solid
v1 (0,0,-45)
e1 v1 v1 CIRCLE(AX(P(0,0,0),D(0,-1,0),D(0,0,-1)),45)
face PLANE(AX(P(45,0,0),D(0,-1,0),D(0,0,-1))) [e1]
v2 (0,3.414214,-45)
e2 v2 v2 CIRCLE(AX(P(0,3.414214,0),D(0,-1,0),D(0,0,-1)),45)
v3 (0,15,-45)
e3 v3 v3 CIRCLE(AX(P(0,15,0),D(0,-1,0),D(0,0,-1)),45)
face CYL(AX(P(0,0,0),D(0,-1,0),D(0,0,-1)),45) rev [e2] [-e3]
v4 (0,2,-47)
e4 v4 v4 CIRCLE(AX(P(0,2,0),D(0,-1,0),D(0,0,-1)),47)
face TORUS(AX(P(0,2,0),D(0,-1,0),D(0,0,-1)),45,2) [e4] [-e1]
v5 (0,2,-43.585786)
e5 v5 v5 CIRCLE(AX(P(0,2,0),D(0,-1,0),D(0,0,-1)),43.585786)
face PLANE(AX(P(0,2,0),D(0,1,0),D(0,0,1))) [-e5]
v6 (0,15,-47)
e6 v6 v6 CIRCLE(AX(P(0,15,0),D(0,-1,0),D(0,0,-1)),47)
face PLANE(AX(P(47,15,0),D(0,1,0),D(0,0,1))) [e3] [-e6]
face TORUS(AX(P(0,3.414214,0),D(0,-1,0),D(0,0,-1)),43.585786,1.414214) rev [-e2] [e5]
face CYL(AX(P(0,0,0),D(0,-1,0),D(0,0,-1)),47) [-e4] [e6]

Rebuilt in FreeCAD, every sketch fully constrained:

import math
import FreeCAD as App
import Part
import Sketcher

V = App.Vector
Q = App.Units.Quantity

doc = App.newDocument("Part")
body = doc.addObject("PartDesign::Body", "Body")

# Sketch on XY plane
sketch1 = body.newObject("Sketcher::SketchObject", "Sketch")
sketch1.AttachmentSupport = (doc.getObject("XY_Plane"), [""])
sketch1.MapMode = "FlatFace"
sketch1.addGeometry([
    Part.LineSegment(V(0, 0, 0), V(45, 0, 0)),  # 0
    Part.ArcOfCircle(Part.Circle(V(45, 2, 0), V(0, 0, 1), 2), math.radians(-90), math.radians(0)),  # 1
    Part.LineSegment(V(47, 2, 0), V(47, 15, 0)),  # 2
    Part.LineSegment(V(47, 15, 0), V(45, 15, 0)),  # 3
    Part.LineSegment(V(45, 15, 0), V(45, 3.4, 0)),  # 4
    Part.ArcOfCircle(Part.Circle(V(43.6, 3.4, 0), V(0, 0, 1), 1.4), math.radians(-90), math.radians(0)),  # 5
    Part.LineSegment(V(43.6, 2, 0), V(0, 2, 0)),  # 6
    Part.LineSegment(V(0, 2, 0), V(0, 0, 0)),  # 7
], False)
sketch1.addConstraint([
    Sketcher.Constraint("Tangent", 0, 2, 1, 1),
    Sketcher.Constraint("Tangent", 1, 2, 2, 1),
    Sketcher.Constraint("Coincident", 2, 2, 3, 1),
    Sketcher.Constraint("Coincident", 3, 2, 4, 1),
    Sketcher.Constraint("Tangent", 4, 2, 5, 2),
    Sketcher.Constraint("Tangent", 5, 1, 6, 1),
    Sketcher.Constraint("Coincident", 6, 2, 7, 1),
    Sketcher.Constraint("Coincident", 7, 2, 0, 1),
    Sketcher.Constraint("Horizontal", 0),
    Sketcher.Constraint("Vertical", 2),
    Sketcher.Constraint("Horizontal", 3),
    Sketcher.Constraint("Vertical", 4),
    Sketcher.Constraint("Horizontal", 6),
    Sketcher.Constraint("Vertical", 7),
    Sketcher.Constraint("Coincident", 7, 2, -1, 1),
    Sketcher.Constraint("Horizontal", 1, 2, 5, 1),
    Sketcher.Constraint("Vertical", 0, 2, 3, 2),
    Sketcher.Constraint("Radius", 1, Q("2 mm")),
    Sketcher.Constraint("DistanceX", 0, 1, 0, 2, Q("45 mm")),
    Sketcher.Constraint("DistanceY", 2, 1, 2, 2, Q("13 mm")),
    Sketcher.Constraint("Radius", 5, Q("1.414214 mm")),
])
revolution = body.newObject("PartDesign::Revolution", "Revolution")
revolution.Profile = sketch1
revolution.ReferenceAxis = (sketch1, ["V_Axis"])
revolution.Angle = 360

doc.recompute()
